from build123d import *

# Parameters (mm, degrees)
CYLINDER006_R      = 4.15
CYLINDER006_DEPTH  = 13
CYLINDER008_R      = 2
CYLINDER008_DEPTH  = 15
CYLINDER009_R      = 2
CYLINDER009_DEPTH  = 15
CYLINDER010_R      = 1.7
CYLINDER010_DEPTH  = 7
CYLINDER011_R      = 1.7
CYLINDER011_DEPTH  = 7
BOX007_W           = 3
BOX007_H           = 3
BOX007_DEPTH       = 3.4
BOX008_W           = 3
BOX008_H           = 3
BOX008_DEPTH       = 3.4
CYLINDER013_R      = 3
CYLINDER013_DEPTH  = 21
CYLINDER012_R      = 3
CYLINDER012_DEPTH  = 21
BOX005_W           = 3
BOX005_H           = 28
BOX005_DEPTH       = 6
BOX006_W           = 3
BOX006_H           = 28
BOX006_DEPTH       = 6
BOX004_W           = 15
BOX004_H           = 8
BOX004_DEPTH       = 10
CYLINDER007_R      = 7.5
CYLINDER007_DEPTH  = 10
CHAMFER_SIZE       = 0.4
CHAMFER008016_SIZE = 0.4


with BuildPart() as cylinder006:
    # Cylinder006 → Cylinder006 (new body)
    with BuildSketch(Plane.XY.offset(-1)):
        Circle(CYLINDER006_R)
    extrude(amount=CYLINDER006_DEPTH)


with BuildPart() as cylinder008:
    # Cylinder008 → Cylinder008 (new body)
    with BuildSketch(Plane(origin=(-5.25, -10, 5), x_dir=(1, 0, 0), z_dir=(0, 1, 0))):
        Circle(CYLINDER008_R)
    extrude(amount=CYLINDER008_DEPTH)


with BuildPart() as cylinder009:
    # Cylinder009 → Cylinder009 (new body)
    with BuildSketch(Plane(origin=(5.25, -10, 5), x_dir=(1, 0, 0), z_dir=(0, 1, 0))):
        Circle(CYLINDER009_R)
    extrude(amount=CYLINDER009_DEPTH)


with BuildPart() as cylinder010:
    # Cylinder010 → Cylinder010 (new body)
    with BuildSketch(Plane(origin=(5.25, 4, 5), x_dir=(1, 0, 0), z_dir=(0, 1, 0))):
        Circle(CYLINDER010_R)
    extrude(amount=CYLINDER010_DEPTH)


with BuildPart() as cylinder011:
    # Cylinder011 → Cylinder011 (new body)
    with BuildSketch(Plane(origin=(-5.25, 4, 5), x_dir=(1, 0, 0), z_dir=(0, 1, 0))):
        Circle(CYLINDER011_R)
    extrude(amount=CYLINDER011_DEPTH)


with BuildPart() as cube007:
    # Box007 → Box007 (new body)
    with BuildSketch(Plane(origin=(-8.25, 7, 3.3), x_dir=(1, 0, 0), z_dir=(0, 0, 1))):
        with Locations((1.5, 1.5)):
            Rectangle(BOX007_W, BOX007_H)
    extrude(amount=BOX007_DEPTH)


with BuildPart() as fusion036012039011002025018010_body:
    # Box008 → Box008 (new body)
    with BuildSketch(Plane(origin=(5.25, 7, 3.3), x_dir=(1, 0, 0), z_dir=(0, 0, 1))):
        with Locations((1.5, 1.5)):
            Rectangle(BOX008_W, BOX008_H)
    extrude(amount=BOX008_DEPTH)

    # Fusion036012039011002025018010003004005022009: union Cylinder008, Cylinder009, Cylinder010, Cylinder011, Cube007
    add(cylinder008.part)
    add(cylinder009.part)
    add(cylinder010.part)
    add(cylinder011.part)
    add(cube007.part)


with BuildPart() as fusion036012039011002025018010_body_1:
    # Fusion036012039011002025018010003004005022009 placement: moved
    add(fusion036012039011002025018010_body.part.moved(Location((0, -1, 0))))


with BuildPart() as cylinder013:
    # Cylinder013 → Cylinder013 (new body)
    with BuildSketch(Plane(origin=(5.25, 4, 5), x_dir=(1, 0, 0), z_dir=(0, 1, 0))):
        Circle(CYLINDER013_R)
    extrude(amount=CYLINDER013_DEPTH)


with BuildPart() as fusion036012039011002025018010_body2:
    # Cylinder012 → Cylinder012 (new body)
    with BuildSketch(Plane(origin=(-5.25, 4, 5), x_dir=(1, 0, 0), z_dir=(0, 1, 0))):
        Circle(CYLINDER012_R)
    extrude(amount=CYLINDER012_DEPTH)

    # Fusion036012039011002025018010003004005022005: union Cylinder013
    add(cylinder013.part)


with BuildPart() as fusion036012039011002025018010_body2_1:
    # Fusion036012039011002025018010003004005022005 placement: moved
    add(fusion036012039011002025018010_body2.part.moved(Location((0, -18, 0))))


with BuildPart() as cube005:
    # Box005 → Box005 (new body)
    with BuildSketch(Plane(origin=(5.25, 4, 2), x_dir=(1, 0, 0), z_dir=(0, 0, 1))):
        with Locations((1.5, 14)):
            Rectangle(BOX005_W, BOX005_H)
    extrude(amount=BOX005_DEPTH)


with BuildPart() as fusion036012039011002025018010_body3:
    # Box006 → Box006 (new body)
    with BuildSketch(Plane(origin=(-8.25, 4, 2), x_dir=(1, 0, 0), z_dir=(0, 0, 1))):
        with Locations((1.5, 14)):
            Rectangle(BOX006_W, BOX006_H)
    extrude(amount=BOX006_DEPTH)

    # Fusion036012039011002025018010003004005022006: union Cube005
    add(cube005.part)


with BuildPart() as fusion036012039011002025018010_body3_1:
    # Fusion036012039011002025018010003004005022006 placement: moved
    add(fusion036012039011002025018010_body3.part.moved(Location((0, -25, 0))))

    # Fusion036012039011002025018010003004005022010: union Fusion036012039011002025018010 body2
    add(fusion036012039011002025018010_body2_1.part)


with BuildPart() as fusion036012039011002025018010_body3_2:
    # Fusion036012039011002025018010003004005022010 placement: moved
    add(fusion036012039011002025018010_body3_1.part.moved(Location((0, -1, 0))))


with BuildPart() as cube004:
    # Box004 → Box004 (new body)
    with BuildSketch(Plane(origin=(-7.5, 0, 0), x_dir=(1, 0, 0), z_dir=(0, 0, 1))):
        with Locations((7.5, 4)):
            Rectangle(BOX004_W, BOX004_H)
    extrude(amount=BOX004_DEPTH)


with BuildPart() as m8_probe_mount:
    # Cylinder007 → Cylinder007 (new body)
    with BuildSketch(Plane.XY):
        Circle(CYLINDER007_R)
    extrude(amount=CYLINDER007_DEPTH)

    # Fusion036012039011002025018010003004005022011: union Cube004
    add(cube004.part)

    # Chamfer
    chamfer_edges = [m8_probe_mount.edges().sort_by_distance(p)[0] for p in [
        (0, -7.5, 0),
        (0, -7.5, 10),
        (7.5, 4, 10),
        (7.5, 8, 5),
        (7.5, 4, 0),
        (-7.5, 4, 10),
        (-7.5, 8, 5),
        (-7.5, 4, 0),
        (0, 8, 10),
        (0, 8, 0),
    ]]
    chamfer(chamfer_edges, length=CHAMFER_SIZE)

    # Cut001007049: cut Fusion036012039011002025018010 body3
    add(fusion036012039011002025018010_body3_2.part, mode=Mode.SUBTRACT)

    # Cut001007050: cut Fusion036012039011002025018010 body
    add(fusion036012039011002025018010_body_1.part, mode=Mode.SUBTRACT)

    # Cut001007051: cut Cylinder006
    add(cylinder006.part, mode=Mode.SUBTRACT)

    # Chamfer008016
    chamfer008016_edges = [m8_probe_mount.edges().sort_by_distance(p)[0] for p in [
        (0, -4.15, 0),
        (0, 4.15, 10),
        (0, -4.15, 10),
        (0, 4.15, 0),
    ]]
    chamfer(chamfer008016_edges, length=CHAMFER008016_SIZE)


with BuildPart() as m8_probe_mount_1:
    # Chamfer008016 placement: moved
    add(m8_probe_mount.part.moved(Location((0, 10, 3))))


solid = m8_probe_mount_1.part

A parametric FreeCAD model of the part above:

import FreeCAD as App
import Part
import Sketcher


def edges_at(feature, points):
    """Names of the edges that pass closest to the given points."""
    edges = feature.Shape.Edges
    near = lambda p: min(range(len(edges)), key=lambda i: edges[i].distToShape(Part.Vertex(*p))[0])
    return sorted({f"Edge{near(p) + 1}" for p in points})


def add_polygon(sketch, points):
    """Adds a closed chain of lines whose ends are joined by coincident constraints."""
    first, n = sketch.GeometryCount, len(points)
    for a, b in zip(points, points[1:] + points[:1]):
        sketch.addGeometry(Part.LineSegment(App.Vector(*a, 0), App.Vector(*b, 0)), False)
    for i in range(n):
        sketch.addConstraint(Sketcher.Constraint("Coincident", first + i, 2, first + (i + 1) % n, 1))

doc = App.newDocument("Part")
body = doc.addObject("PartDesign::Body", "Body")

# Sketch on XY plane
sketch1 = body.newObject("Sketcher::SketchObject", "Sketch")
sketch1.AttachmentSupport = (doc.getObject("XY_Plane"), [""])
sketch1.MapMode = "FlatFace"
sketch1.AttachmentOffset = App.Placement(App.Vector(0, 0, -1), App.Rotation())
sketch1.addGeometry(Part.Circle(App.Vector(0, 0, 0), App.Vector(0, 0, 1), 4.2), False)
sketch1.addConstraint([
    Sketcher.Constraint("Coincident", 0, 3, -1, 1),
    Sketcher.Constraint("Diameter", 0, 8.3),
])
pad1 = body.newObject("PartDesign::Pad", "Pad")
pad1.Profile = sketch1
pad1.Length = 13
body2 = doc.addObject("PartDesign::Body", "Body001")

# Sketch on XZ plane
sketch2 = body2.newObject("Sketcher::SketchObject", "Sketch001")
sketch2.AttachmentSupport = (doc.getObject("XZ_Plane001"), [""])
sketch2.MapMode = "FlatFace"
sketch2.AttachmentOffset = App.Placement(App.Vector(0, 0, 10), App.Rotation())
sketch2.addGeometry(Part.Circle(App.Vector(-5.2, 5, 0), App.Vector(0, 0, 1), 2), False)
sketch2.addConstraint([
    Sketcher.Constraint("Diameter", 0, 4.0),
    Sketcher.Constraint("DistanceY", -1, 1, 0, 3, 5.0),
    Sketcher.Constraint("DistanceX", 0, 3, -1, 1, 5.25),
])
pad2 = body2.newObject("PartDesign::Pad", "Pad001")
pad2.Profile = sketch2
pad2.Length = 15
pad2.Reversed = True
body3 = doc.addObject("PartDesign::Body", "Body002")

# Sketch on XZ plane
sketch3 = body3.newObject("Sketcher::SketchObject", "Sketch002")
sketch3.AttachmentSupport = (doc.getObject("XZ_Plane002"), [""])
sketch3.MapMode = "FlatFace"
sketch3.AttachmentOffset = App.Placement(App.Vector(0, 0, 10), App.Rotation())
sketch3.addGeometry(Part.Circle(App.Vector(5.2, 5, 0), App.Vector(0, 0, 1), 2), False)
sketch3.addConstraint([
    Sketcher.Constraint("Diameter", 0, 4.0),
    Sketcher.Constraint("DistanceY", -1, 1, 0, 3, 5.0),
    Sketcher.Constraint("DistanceX", -1, 1, 0, 3, 5.25),
])
pad3 = body3.newObject("PartDesign::Pad", "Pad002")
pad3.Profile = sketch3
pad3.Length = 15
pad3.Reversed = True
body4 = doc.addObject("PartDesign::Body", "Body003")

# Sketch on XZ plane
sketch4 = body4.newObject("Sketcher::SketchObject", "Sketch003")
sketch4.AttachmentSupport = (doc.getObject("XZ_Plane003"), [""])
sketch4.MapMode = "FlatFace"
sketch4.AttachmentOffset = App.Placement(App.Vector(0, 0, -4), App.Rotation())
sketch4.addGeometry(Part.Circle(App.Vector(5.2, 5, 0), App.Vector(0, 0, 1), 1.7), False)
sketch4.addConstraint([
    Sketcher.Constraint("Diameter", 0, 3.4),
    Sketcher.Constraint("DistanceY", -1, 1, 0, 3, 5.0),
    Sketcher.Constraint("DistanceX", -1, 1, 0, 3, 5.25),
])
pad4 = body4.newObject("PartDesign::Pad", "Pad003")
pad4.Profile = sketch4
pad4.Length = 7
pad4.Reversed = True
body5 = doc.addObject("PartDesign::Body", "Body004")

# Sketch on XZ plane
sketch5 = body5.newObject("Sketcher::SketchObject", "Sketch004")
sketch5.AttachmentSupport = (doc.getObject("XZ_Plane004"), [""])
sketch5.MapMode = "FlatFace"
sketch5.AttachmentOffset = App.Placement(App.Vector(0, 0, -4), App.Rotation())
sketch5.addGeometry(Part.Circle(App.Vector(-5.2, 5, 0), App.Vector(0, 0, 1), 1.7), False)
sketch5.addConstraint([
    Sketcher.Constraint("Diameter", 0, 3.4),
    Sketcher.Constraint("DistanceY", -1, 1, 0, 3, 5.0),
    Sketcher.Constraint("DistanceX", 0, 3, -1, 1, 5.25),
])
pad5 = body5.newObject("PartDesign::Pad", "Pad004")
pad5.Profile = sketch5
pad5.Length = 7
pad5.Reversed = True
body6 = doc.addObject("PartDesign::Body", "Body005")

# Sketch on XY plane
sketch6 = body6.newObject("Sketcher::SketchObject", "Sketch005")
sketch6.AttachmentSupport = (doc.getObject("XY_Plane005"), [""])
sketch6.MapMode = "FlatFace"
sketch6.AttachmentOffset = App.Placement(App.Vector(0, 0, 3.3), App.Rotation())
add_polygon(sketch6, [(-8.2, 10), (-8.2, 7), (-5.2, 7), (-5.2, 10)])  # lines 0-3
sketch6.addConstraint([
    Sketcher.Constraint("Vertical", 0),
    Sketcher.Constraint("Horizontal", 1),
    Sketcher.Constraint("Vertical", 2),
    Sketcher.Constraint("Horizontal", 3),
    Sketcher.Constraint("Equal", 3, 0),
    Sketcher.Constraint("DistanceX", 1, 1, 1, 2, 3.0),
    Sketcher.Constraint("DistanceY", -1, 1, 0, 2, 7.0),
    Sketcher.Constraint("DistanceX", 0, 2, -1, 1, 8.25),
])
pad6 = body6.newObject("PartDesign::Pad", "Pad005")
pad6.Profile = sketch6
pad6.Length = 3.4
body7 = doc.addObject("PartDesign::Body", "Body006")
body7.AllowCompound = True

# Sketch on XY plane
sketch7 = body7.newObject("Sketcher::SketchObject", "Sketch006")
sketch7.AttachmentSupport = (doc.getObject("XY_Plane006"), [""])
sketch7.MapMode = "FlatFace"
sketch7.AttachmentOffset = App.Placement(App.Vector(0, 0, 3.3), App.Rotation())
add_polygon(sketch7, [(5.2, 10), (5.2, 7), (8.2, 7), (8.2, 10)])  # lines 0-3
sketch7.addConstraint([
    Sketcher.Constraint("Vertical", 0),
    Sketcher.Constraint("Horizontal", 1),
    Sketcher.Constraint("Vertical", 2),
    Sketcher.Constraint("Horizontal", 3),
    Sketcher.Constraint("Equal", 3, 0),
    Sketcher.Constraint("DistanceX", 1, 1, 1, 2, 3.0),
    Sketcher.Constraint("DistanceY", -1, 1, 0, 2, 7.0),
    Sketcher.Constraint("DistanceX", -1, 1, 0, 2, 5.25),
])
pad7 = body7.newObject("PartDesign::Pad", "Pad006")
pad7.Profile = sketch7
pad7.Length = 3.4
doc.recompute()

boolean = body7.newObject("PartDesign::Boolean", "Boolean")
boolean.Type = "Fuse"
boolean.addObjects([body2])
doc.recompute()

boolean2 = body7.newObject("PartDesign::Boolean", "Boolean001")
boolean2.Type = "Fuse"
boolean2.addObjects([body3])
doc.recompute()

boolean3 = body7.newObject("PartDesign::Boolean", "Boolean002")
boolean3.Type = "Fuse"
boolean3.addObjects([body4])
doc.recompute()

boolean4 = body7.newObject("PartDesign::Boolean", "Boolean003")
boolean4.Type = "Fuse"
boolean4.addObjects([body5])
doc.recompute()

boolean5 = body7.newObject("PartDesign::Boolean", "Boolean004")
boolean5.Type = "Fuse"
boolean5.addObjects([body6])
body8 = doc.addObject("PartDesign::Body", "Body007")
body8.AllowCompound = True
doc.recompute()

body7.Placement = App.Placement(App.Vector(0, -1, 0), App.Rotation(App.Vector(0, 0, 1), 0))
boolean6 = body8.newObject("PartDesign::Boolean", "Boolean005")
boolean6.Type = "Fuse"
boolean6.addObjects([body7])
body9 = doc.addObject("PartDesign::Body", "Body008")

# Sketch on XZ plane
sketch8 = body9.newObject("Sketcher::SketchObject", "Sketch007")
sketch8.AttachmentSupport = (doc.getObject("XZ_Plane008"), [""])
sketch8.MapMode = "FlatFace"
sketch8.AttachmentOffset = App.Placement(App.Vector(0, 0, -4), App.Rotation())
sketch8.addGeometry(Part.Circle(App.Vector(5.2, 5, 0), App.Vector(0, 0, 1), 3), False)
sketch8.addConstraint([
    Sketcher.Constraint("Diameter", 0, 6.0),
    Sketcher.Constraint("DistanceY", -1, 1, 0, 3, 5.0),
    Sketcher.Constraint("DistanceX", -1, 1, 0, 3, 5.25),
])
pad8 = body9.newObject("PartDesign::Pad", "Pad007")
pad8.Profile = sketch8
pad8.Length = 21
pad8.Reversed = True
body10 = doc.addObject("PartDesign::Body", "Body009")
body10.AllowCompound = True

# Sketch on XZ plane
sketch9 = body10.newObject("Sketcher::SketchObject", "Sketch008")
sketch9.AttachmentSupport = (doc.getObject("XZ_Plane009"), [""])
sketch9.MapMode = "FlatFace"
sketch9.AttachmentOffset = App.Placement(App.Vector(0, 0, -4), App.Rotation())
sketch9.addGeometry(Part.Circle(App.Vector(-5.2, 5, 0), App.Vector(0, 0, 1), 3), False)
sketch9.addConstraint([
    Sketcher.Constraint("Diameter", 0, 6.0),
    Sketcher.Constraint("DistanceY", -1, 1, 0, 3, 5.0),
    Sketcher.Constraint("DistanceX", 0, 3, -1, 1, 5.25),
])
pad9 = body10.newObject("PartDesign::Pad", "Pad008")
pad9.Profile = sketch9
pad9.Length = 21
pad9.Reversed = True
doc.recompute()

boolean7 = body10.newObject("PartDesign::Boolean", "Boolean006")
boolean7.Type = "Fuse"
boolean7.addObjects([body9])
body11 = doc.addObject("PartDesign::Body", "Body010")
body11.AllowCompound = True
doc.recompute()

body10.Placement = App.Placement(App.Vector(0, -18, 0), App.Rotation(App.Vector(0, 0, 1), 0))
boolean8 = body11.newObject("PartDesign::Boolean", "Boolean007")
boolean8.Type = "Fuse"
boolean8.addObjects([body10])
body12 = doc.addObject("PartDesign::Body", "Body011")

# Sketch on XY plane
sketch10 = body12.newObject("Sketcher::SketchObject", "Sketch009")
sketch10.AttachmentSupport = (doc.getObject("XY_Plane011"), [""])
sketch10.MapMode = "FlatFace"
sketch10.AttachmentOffset = App.Placement(App.Vector(0, 0, 2), App.Rotation())
add_polygon(sketch10, [(5.2, 32), (5.2, 4), (8.2, 4), (8.2, 32)])  # lines 0-3
sketch10.addConstraint([
    Sketcher.Constraint("Vertical", 0),
    Sketcher.Constraint("Horizontal", 1),
    Sketcher.Constraint("Vertical", 2),
    Sketcher.Constraint("Horizontal", 3),
    Sketcher.Constraint("DistanceX", 1, 1, 1, 2, 3.0),
    Sketcher.Constraint("DistanceY", 0, 2, 0, 1, 28.0),
    Sketcher.Constraint("DistanceY", -1, 1, 0, 2, 4.0),
    Sketcher.Constraint("DistanceX", -1, 1, 0, 2, 5.25),
])
pad10 = body12.newObject("PartDesign::Pad", "Pad009")
pad10.Profile = sketch10
pad10.Length = 6
body13 = doc.addObject("PartDesign::Body", "Body012")
body13.AllowCompound = True

# Sketch on XY plane
sketch11 = body13.newObject("Sketcher::SketchObject", "Sketch010")
sketch11.AttachmentSupport = (doc.getObject("XY_Plane012"), [""])
sketch11.MapMode = "FlatFace"
sketch11.AttachmentOffset = App.Placement(App.Vector(0, 0, 2), App.Rotation())
add_polygon(sketch11, [(-8.2, 32), (-8.2, 4), (-5.2, 4), (-5.2, 32)])  # lines 0-3
sketch11.addConstraint([
    Sketcher.Constraint("Vertical", 0),
    Sketcher.Constraint("Horizontal", 1),
    Sketcher.Constraint("Vertical", 2),
    Sketcher.Constraint("Horizontal", 3),
    Sketcher.Constraint("DistanceX", 1, 1, 1, 2, 3.0),
    Sketcher.Constraint("DistanceY", 0, 2, 0, 1, 28.0),
    Sketcher.Constraint("DistanceY", -1, 1, 0, 2, 4.0),
    Sketcher.Constraint("DistanceX", 0, 2, -1, 1, 8.25),
])
pad11 = body13.newObject("PartDesign::Pad", "Pad010")
pad11.Profile = sketch11
pad11.Length = 6
doc.recompute()

boolean9 = body13.newObject("PartDesign::Boolean", "Boolean008")
boolean9.Type = "Fuse"
boolean9.addObjects([body12])
body14 = doc.addObject("PartDesign::Body", "Body013")
body14.AllowCompound = True
doc.recompute()

body13.Placement = App.Placement(App.Vector(0, -25, 0), App.Rotation(App.Vector(0, 0, 1), 0))
boolean10 = body14.newObject("PartDesign::Boolean", "Boolean009")
boolean10.Type = "Fuse"
boolean10.addObjects([body13])
doc.recompute()

boolean11 = body14.newObject("PartDesign::Boolean", "Boolean010")
boolean11.Type = "Fuse"
boolean11.addObjects([body11])
body15 = doc.addObject("PartDesign::Body", "Body014")
body15.AllowCompound = True
doc.recompute()

body14.Placement = App.Placement(App.Vector(0, -1, 0), App.Rotation(App.Vector(0, 0, 1), 0))
boolean12 = body15.newObject("PartDesign::Boolean", "Boolean011")
boolean12.Type = "Fuse"
boolean12.addObjects([body14])
body16 = doc.addObject("PartDesign::Body", "Body015")

# Sketch on XY plane
sketch12 = body16.newObject("Sketcher::SketchObject", "Sketch011")
sketch12.AttachmentSupport = (doc.getObject("XY_Plane015"), [""])
sketch12.MapMode = "FlatFace"
add_polygon(sketch12, [(-8, 8), (-8, 0), (8, 0), (8, 8)])  # lines 0-3
sketch12.addConstraint([
    Sketcher.Constraint("Vertical", 0),
    Sketcher.Constraint("Horizontal", 1),
    Sketcher.Constraint("Vertical", 2),
    Sketcher.Constraint("Horizontal", 3),
    Sketcher.Constraint("Symmetric", 0, 2, 1, 2, -1, 1),
    Sketcher.Constraint("DistanceX", 1, 1, 1, 2, 15.0),
    Sketcher.Constraint("DistanceY", 0, 2, 0, 1, 8.0),
])
pad12 = body16.newObject("PartDesign::Pad", "Pad011")
pad12.Profile = sketch12
pad12.Length = 10
body17 = doc.addObject("PartDesign::Body", "Body016")

# Sketch on XY plane
sketch13 = body17.newObject("Sketcher::SketchObject", "Sketch012")
sketch13.AttachmentSupport = (doc.getObject("XY_Plane016"), [""])
sketch13.MapMode = "FlatFace"
sketch13.addGeometry(Part.Circle(App.Vector(0, 0, 0), App.Vector(0, 0, 1), 8), False)
sketch13.addConstraint([
    Sketcher.Constraint("Coincident", 0, 3, -1, 1),
    Sketcher.Constraint("Diameter", 0, 15.0),
])
pad13 = body17.newObject("PartDesign::Pad", "Pad012")
pad13.Profile = sketch13
pad13.Length = 10
doc.recompute()

boolean13 = body17.newObject("PartDesign::Boolean", "Boolean012")
boolean13.Type = "Fuse"
boolean13.addObjects([body16])
doc.recompute()

chamfer = body17.newObject("PartDesign::Chamfer", "Chamfer")
chamfer.Base = (boolean13, ["Edge1"])
chamfer.UseAllEdges = True
chamfer.Size = 0.4
doc.recompute()

boolean14 = body17.newObject("PartDesign::Boolean", "Boolean013")
boolean14.Type = "Cut"
boolean14.addObjects([body15])
doc.recompute()

boolean15 = body17.newObject("PartDesign::Boolean", "Boolean014")
boolean15.Type = "Cut"
boolean15.addObjects([body8])
doc.recompute()

boolean16 = body17.newObject("PartDesign::Boolean", "Boolean015")
boolean16.Type = "Cut"
boolean16.addObjects([body])
doc.recompute()

chamfer2 = body17.newObject("PartDesign::Chamfer", "Chamfer001")
chamfer2.Base = (boolean16, edges_at(boolean16, [
    (-4.15, 0, 0),
    (-4.15, 0, 10),
    (-4.15, 0, 10),
    (-4.15, 0, 0),
]))
chamfer2.Size = 0.4
body18 = doc.addObject("PartDesign::Body", "Body017")
doc.recompute()

body17.Placement = App.Placement(App.Vector(0, 10, 3), App.Rotation(App.Vector(0, 0, 1), 0))
boolean17 = body18.newObject("PartDesign::Boolean", "Boolean016")
boolean17.Type = "Fuse"
boolean17.addObjects([body17])

doc.recompute()
